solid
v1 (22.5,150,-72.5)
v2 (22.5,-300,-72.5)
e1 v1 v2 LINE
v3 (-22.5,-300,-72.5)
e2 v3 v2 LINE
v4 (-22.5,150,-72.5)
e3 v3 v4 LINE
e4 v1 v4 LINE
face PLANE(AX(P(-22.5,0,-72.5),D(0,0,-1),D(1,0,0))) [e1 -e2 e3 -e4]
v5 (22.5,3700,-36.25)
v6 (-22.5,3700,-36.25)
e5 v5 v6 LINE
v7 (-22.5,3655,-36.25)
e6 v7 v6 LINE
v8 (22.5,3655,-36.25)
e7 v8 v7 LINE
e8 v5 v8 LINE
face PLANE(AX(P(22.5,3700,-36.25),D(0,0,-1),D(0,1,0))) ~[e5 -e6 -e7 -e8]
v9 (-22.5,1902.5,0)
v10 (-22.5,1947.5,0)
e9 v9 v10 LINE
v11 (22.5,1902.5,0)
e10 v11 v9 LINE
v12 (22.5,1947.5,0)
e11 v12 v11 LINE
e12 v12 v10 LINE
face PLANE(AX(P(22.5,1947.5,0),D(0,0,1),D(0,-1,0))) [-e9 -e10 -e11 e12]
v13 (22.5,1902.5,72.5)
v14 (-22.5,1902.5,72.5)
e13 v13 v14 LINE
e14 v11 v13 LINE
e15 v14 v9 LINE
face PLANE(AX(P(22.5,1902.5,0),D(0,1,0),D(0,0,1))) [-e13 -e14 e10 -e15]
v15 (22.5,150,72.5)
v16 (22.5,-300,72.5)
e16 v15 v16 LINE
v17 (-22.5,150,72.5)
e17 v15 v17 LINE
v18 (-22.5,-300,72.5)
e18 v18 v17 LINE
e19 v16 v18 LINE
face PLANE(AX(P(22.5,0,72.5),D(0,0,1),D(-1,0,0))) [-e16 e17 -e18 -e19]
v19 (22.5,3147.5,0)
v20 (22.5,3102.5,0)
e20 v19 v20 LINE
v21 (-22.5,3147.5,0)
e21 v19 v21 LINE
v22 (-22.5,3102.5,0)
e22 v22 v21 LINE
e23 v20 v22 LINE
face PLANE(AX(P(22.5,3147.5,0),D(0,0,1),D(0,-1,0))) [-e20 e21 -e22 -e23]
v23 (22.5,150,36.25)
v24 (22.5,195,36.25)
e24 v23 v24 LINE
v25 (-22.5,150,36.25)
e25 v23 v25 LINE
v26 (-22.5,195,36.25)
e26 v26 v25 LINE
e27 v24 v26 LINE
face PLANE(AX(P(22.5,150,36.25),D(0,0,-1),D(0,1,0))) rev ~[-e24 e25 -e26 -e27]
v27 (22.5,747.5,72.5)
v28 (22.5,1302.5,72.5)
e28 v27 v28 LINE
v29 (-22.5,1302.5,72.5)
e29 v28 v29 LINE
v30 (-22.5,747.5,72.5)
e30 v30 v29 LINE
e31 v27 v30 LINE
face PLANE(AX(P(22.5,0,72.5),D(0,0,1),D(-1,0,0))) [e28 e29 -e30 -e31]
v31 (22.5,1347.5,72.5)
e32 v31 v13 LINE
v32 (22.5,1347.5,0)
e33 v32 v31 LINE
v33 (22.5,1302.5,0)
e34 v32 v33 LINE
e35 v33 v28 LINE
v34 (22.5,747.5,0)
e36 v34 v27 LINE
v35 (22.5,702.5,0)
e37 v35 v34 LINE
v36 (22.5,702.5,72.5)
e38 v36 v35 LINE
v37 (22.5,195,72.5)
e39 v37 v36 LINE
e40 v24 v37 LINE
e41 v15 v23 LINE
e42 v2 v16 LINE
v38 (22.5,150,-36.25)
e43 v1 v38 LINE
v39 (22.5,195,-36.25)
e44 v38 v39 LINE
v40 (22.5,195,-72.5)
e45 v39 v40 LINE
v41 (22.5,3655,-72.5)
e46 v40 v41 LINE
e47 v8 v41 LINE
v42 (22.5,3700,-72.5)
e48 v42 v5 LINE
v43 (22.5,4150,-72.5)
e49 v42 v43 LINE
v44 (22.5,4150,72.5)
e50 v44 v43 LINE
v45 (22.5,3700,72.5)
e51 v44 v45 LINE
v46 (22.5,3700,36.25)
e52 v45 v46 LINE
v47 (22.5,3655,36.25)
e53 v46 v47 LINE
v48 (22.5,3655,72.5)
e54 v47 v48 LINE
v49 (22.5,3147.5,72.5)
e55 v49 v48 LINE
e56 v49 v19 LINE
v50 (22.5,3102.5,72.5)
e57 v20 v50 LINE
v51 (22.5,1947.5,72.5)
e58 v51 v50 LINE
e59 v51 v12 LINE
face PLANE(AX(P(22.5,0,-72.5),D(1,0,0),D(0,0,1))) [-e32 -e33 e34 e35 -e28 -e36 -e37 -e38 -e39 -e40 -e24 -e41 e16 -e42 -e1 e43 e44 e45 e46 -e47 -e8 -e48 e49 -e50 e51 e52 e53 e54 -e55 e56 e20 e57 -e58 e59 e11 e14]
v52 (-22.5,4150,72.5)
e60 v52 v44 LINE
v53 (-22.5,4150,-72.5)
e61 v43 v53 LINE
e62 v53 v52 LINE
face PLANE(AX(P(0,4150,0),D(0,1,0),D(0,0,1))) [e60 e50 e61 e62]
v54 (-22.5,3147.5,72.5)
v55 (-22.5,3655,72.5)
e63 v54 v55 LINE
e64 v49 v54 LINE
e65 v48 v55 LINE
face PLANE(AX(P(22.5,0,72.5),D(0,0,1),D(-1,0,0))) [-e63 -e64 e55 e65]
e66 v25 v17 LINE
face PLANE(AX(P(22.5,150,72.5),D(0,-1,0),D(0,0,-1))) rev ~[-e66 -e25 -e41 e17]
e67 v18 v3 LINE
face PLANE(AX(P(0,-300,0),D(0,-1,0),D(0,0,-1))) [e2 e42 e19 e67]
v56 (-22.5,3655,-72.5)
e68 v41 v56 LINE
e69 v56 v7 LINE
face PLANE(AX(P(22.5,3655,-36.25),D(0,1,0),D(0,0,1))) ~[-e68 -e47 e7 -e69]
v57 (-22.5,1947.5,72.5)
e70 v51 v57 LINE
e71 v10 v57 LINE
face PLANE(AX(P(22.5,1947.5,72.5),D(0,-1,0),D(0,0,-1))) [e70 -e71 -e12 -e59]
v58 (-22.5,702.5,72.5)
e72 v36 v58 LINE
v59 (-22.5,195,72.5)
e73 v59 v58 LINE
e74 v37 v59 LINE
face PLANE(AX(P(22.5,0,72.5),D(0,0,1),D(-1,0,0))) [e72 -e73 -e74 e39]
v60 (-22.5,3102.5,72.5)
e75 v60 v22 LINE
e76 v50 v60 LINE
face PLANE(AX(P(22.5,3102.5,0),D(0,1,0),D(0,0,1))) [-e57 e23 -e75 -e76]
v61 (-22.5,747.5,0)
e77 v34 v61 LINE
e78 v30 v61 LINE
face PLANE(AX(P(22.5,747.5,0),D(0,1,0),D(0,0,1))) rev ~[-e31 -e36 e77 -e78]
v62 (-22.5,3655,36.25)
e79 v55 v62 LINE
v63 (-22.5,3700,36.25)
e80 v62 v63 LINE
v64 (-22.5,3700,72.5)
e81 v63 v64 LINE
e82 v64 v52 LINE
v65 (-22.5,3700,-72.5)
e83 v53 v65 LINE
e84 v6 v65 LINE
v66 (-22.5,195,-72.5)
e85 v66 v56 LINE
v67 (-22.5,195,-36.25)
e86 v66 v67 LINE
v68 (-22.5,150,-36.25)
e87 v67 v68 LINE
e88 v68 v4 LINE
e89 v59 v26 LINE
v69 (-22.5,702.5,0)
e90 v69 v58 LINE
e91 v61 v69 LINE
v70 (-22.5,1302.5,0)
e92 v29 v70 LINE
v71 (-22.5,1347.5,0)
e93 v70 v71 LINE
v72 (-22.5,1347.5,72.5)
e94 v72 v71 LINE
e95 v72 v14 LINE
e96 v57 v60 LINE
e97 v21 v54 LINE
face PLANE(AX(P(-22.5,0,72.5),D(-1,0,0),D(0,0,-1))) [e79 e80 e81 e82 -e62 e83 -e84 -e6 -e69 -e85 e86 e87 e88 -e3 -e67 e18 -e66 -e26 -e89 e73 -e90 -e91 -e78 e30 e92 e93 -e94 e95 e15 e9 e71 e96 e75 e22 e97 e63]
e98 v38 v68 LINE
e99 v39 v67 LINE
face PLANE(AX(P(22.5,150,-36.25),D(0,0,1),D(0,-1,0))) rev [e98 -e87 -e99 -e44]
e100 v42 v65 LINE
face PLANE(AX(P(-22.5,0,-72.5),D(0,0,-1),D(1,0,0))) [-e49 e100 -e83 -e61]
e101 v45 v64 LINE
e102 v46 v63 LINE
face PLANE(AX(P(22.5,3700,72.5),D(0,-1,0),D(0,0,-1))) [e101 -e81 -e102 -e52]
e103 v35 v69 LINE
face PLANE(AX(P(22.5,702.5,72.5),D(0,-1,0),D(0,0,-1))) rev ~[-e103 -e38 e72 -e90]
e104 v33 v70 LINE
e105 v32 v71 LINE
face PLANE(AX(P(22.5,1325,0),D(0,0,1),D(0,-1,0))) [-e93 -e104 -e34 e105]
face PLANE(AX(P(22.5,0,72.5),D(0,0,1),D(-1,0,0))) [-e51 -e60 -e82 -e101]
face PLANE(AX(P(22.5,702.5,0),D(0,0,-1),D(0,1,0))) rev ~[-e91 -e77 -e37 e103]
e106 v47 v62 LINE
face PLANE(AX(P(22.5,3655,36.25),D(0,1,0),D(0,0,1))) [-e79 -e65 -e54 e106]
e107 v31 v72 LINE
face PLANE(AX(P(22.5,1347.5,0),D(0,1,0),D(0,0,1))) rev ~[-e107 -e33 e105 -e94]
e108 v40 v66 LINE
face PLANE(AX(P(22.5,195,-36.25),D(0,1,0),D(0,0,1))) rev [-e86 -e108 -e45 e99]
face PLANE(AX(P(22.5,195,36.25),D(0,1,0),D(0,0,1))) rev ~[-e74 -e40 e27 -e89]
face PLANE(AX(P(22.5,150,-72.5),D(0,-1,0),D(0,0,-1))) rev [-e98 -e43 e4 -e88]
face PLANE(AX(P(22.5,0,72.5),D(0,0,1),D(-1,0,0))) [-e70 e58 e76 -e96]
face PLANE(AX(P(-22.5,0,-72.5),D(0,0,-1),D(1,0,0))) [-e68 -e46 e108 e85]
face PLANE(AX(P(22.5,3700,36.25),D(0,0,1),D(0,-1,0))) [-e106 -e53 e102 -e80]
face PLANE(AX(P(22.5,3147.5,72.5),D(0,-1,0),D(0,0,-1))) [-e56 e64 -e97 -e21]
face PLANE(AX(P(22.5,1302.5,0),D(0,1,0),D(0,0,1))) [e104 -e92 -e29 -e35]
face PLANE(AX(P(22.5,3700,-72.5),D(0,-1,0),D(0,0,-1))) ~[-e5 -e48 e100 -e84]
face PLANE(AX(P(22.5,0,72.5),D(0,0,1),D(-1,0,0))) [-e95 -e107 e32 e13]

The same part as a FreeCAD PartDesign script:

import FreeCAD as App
import Part
import Sketcher
from FreeCAD import Vector
Q = App.Units.Quantity

doc = App.newDocument("Part")
body = doc.addObject("PartDesign::Body", "Body")

sketch1 = body.newObject("Sketcher::SketchObject", "Sketch")
sketch1.AttachmentSupport = (doc.getObject("XZ_Plane"), [""])
sketch1.MapMode = "FlatFace"
sketch1.addGeometry(Part.LineSegment(Vector(-22.5, 72.5, 0), Vector(-22.5, -72.5, 0)), False)
sketch1.addGeometry(Part.LineSegment(Vector(-22.5, -72.5, 0), Vector(22.5, -72.5, 0)), False)
sketch1.addGeometry(Part.LineSegment(Vector(22.5, -72.5, 0), Vector(22.5, 72.5, 0)), False)
sketch1.addGeometry(Part.LineSegment(Vector(22.5, 72.5, 0), Vector(-22.5, 72.5, 0)), False)
sketch1.addConstraint(Sketcher.Constraint("Coincident", 0, 2, 1, 1))
sketch1.addConstraint(Sketcher.Constraint("Coincident", 1, 2, 2, 1))
sketch1.addConstraint(Sketcher.Constraint("Coincident", 2, 2, 3, 1))
sketch1.addConstraint(Sketcher.Constraint("Coincident", 3, 2, 0, 1))
sketch1.addConstraint(Sketcher.Constraint("Vertical", 0))
sketch1.addConstraint(Sketcher.Constraint("Horizontal", 1))
sketch1.addConstraint(Sketcher.Constraint("Vertical", 2))
sketch1.addConstraint(Sketcher.Constraint("Horizontal", 3))
sketch1.addConstraint(Sketcher.Constraint("Symmetric", 0, 2, 2, 2, -1, 1))
sketch1.addConstraint(Sketcher.Constraint("DistanceX", 1, 1, 1, 2, Q("45 mm")))
sketch1.addConstraint(Sketcher.Constraint("DistanceY", 0, 2, 0, 1, Q("145 mm")))
pad1 = body.newObject("PartDesign::Pad", "Pad")
pad1.Profile = sketch1
pad1.Length = 3850
pad1.Reversed = True

sketch2 = body.newObject("Sketcher::SketchObject", "Sketch001")
sketch2.AttachmentSupport = (doc.getObject("YZ_Plane"), [""])
sketch2.MapMode = "FlatFace"
sketch2.AttachmentOffset = App.Placement(Vector(0, 0, 22.5), App.Rotation())
sketch2.addGeometry(Part.LineSegment(Vector(3700, 36.25, 0), Vector(3700, 72.5, 0)), False)
sketch2.addGeometry(Part.LineSegment(Vector(3700, 72.5, 0), Vector(3655, 72.5, 0)), False)
sketch2.addGeometry(Part.LineSegment(Vector(3655, 72.5, 0), Vector(3655, 36.25, 0)), False)
sketch2.addGeometry(Part.LineSegment(Vector(3655, 36.25, 0), Vector(3700, 36.25, 0)), False)
sketch2.addGeometry(Part.LineSegment(Vector(195, 72.5, 0), Vector(150, 72.5, 0)), False)
sketch2.addGeometry(Part.LineSegment(Vector(150, 72.5, 0), Vector(150, 36.25, 0)), False)
sketch2.addGeometry(Part.LineSegment(Vector(150, 36.25, 0), Vector(195, 36.25, 0)), False)
sketch2.addGeometry(Part.LineSegment(Vector(195, 36.25, 0), Vector(195, 72.5, 0)), False)
sketch2.addConstraint(Sketcher.Constraint("Coincident", 0, 2, 1, 1))
sketch2.addConstraint(Sketcher.Constraint("Coincident", 1, 2, 2, 1))
sketch2.addConstraint(Sketcher.Constraint("Coincident", 2, 2, 3, 1))
sketch2.addConstraint(Sketcher.Constraint("Coincident", 3, 2, 0, 1))
sketch2.addConstraint(Sketcher.Constraint("Coincident", 4, 2, 5, 1))
sketch2.addConstraint(Sketcher.Constraint("Coincident", 5, 2, 6, 1))
sketch2.addConstraint(Sketcher.Constraint("Coincident", 6, 2, 7, 1))
sketch2.addConstraint(Sketcher.Constraint("Coincident", 7, 2, 4, 1))
sketch2.addConstraint(Sketcher.Constraint("Vertical", 0))
sketch2.addConstraint(Sketcher.Constraint("Horizontal", 1))
sketch2.addConstraint(Sketcher.Constraint("Vertical", 2))
sketch2.addConstraint(Sketcher.Constraint("Horizontal", 3))
sketch2.addConstraint(Sketcher.Constraint("Horizontal", 4))
sketch2.addConstraint(Sketcher.Constraint("Vertical", 5))
sketch2.addConstraint(Sketcher.Constraint("Horizontal", 6))
sketch2.addConstraint(Sketcher.Constraint("Vertical", 7))
sketch2.addConstraint(Sketcher.Constraint("Horizontal", 1, 2, 4, 2))
sketch2.addConstraint(Sketcher.Constraint("Horizontal", 3, 2, 5, 2))
sketch2.addConstraint(Sketcher.Constraint("Equal", 3, 4))
sketch2.addConstraint(Sketcher.Constraint("DistanceX", 1, 2, 1, 1, Q("45 mm")))
sketch2.addConstraint(Sketcher.Constraint("DistanceX", -1, 1, 0, 2, Q("3700 mm")))
sketch2.addConstraint(Sketcher.Constraint("DistanceX", -1, 1, 4, 2, Q("150 mm")))
sketch2.addConstraint(Sketcher.Constraint("DistanceY", 0, 1, 0, 2, Q("36.25 mm")))
sketch2.addConstraint(Sketcher.Constraint("DistanceY", -1, 1, 0, 2, Q("72.5 mm")))
pocket1 = body.newObject("PartDesign::Pocket", "Pocket")
pocket1.Profile = sketch2
pocket1.Length = 86.6929
doc.recompute()

mirrored = body.newObject("PartDesign::Mirrored", "Mirrored")
mirrored.Originals = [pocket1]
mirrored.MirrorPlane = (doc.getObject("XY_Plane"), [""])
body.Tip = mirrored

sketch3 = body.newObject("Sketcher::SketchObject", "Sketch002")
sketch3.AttachmentSupport = (doc.getObject("XZ_Plane"), [""])
sketch3.MapMode = "FlatFace"
sketch3.AttachmentOffset = App.Placement(Vector(0, 0, -3850), App.Rotation())
sketch3.addGeometry(Part.LineSegment(Vector(22.5, 72.5, 0), Vector(22.5, -72.5, 0)), False)
sketch3.addGeometry(Part.LineSegment(Vector(22.5, -72.5, 0), Vector(-22.5, -72.5, 0)), False)
sketch3.addGeometry(Part.LineSegment(Vector(-22.5, -72.5, 0), Vector(-22.5, 72.5, 0)), False)
sketch3.addGeometry(Part.LineSegment(Vector(-22.5, 72.5, 0), Vector(22.5, 72.5, 0)), False)
sketch3.addConstraint(Sketcher.Constraint("Coincident", 0, 2, 1, 1))
sketch3.addConstraint(Sketcher.Constraint("Coincident", 1, 2, 2, 1))
sketch3.addConstraint(Sketcher.Constraint("Coincident", 2, 2, 3, 1))
sketch3.addConstraint(Sketcher.Constraint("Coincident", 3, 2, 0, 1))
sketch3.addConstraint(Sketcher.Constraint("Vertical", 0))
sketch3.addConstraint(Sketcher.Constraint("Horizontal", 1))
sketch3.addConstraint(Sketcher.Constraint("Vertical", 2))
sketch3.addConstraint(Sketcher.Constraint("Horizontal", 3))
sketch3.addConstraint(Sketcher.Constraint("Symmetric", 0, 2, 2, 2, -1, 1))
sketch3.addConstraint(Sketcher.Constraint("DistanceX", 1, 2, 1, 1, Q("45 mm")))
sketch3.addConstraint(Sketcher.Constraint("DistanceY", 0, 2, 0, 1, Q("145 mm")))
pad2 = body.newObject("PartDesign::Pad", "Pad001")
pad2.Profile = sketch3
pad2.Length = 300
pad2.Reversed = True

sketch4 = body.newObject("Sketcher::SketchObject", "Sketch003")
sketch4.AttachmentSupport = (doc.getObject("XZ_Plane"), [""])
sketch4.MapMode = "FlatFace"
sketch4.addGeometry(Part.LineSegment(Vector(-22.5, 72.5, 0), Vector(-22.5, -72.5, 0)), False)
sketch4.addGeometry(Part.LineSegment(Vector(-22.5, -72.5, 0), Vector(22.5, -72.5, 0)), False)
sketch4.addGeometry(Part.LineSegment(Vector(22.5, -72.5, 0), Vector(22.5, 72.5, 0)), False)
sketch4.addGeometry(Part.LineSegment(Vector(22.5, 72.5, 0), Vector(-22.5, 72.5, 0)), False)
sketch4.addConstraint(Sketcher.Constraint("Coincident", 0, 2, 1, 1))
sketch4.addConstraint(Sketcher.Constraint("Coincident", 1, 2, 2, 1))
sketch4.addConstraint(Sketcher.Constraint("Coincident", 2, 2, 3, 1))
sketch4.addConstraint(Sketcher.Constraint("Coincident", 3, 2, 0, 1))
sketch4.addConstraint(Sketcher.Constraint("Vertical", 0))
sketch4.addConstraint(Sketcher.Constraint("Horizontal", 1))
sketch4.addConstraint(Sketcher.Constraint("Vertical", 2))
sketch4.addConstraint(Sketcher.Constraint("Horizontal", 3))
sketch4.addConstraint(Sketcher.Constraint("Symmetric", 0, 2, 2, 2, -1, 1))
sketch4.addConstraint(Sketcher.Constraint("DistanceX", 1, 1, 1, 2, Q("45 mm")))
sketch4.addConstraint(Sketcher.Constraint("DistanceY", 0, 2, 0, 1, Q("145 mm")))
pad3 = body.newObject("PartDesign::Pad", "Pad002")
pad3.Profile = sketch4
pad3.Length = 300

sketch5 = body.newObject("Sketcher::SketchObject", "Sketch004")
sketch5.AttachmentSupport = (doc.getObject("YZ_Plane"), [""])
sketch5.MapMode = "FlatFace"
sketch5.AttachmentOffset = App.Placement(Vector(0, 0, 22.5), App.Rotation())
sketch5.addGeometry(Part.LineSegment(Vector(1947.5, 72.5, 0), Vector(1902.5, 72.5, 0)), False)
sketch5.addGeometry(Part.LineSegment(Vector(1902.5, 72.5, 0), Vector(1902.5, 0, 0)), False)
sketch5.addGeometry(Part.LineSegment(Vector(1902.5, 0, 0), Vector(1947.5, 0, 0)), False)
sketch5.addGeometry(Part.LineSegment(Vector(1947.5, 0, 0), Vector(1947.5, 72.5, 0)), False)
sketch5.addGeometry(Part.LineSegment(Vector(1302.5, 0, 0), Vector(1347.5, 0, 0)), False)
sketch5.addGeometry(Part.LineSegment(Vector(1347.5, 0, 0), Vector(1347.5, 72.5, 0)), False)
sketch5.addGeometry(Part.LineSegment(Vector(1347.5, 72.5, 0), Vector(1302.5, 72.5, 0)), False)
sketch5.addGeometry(Part.LineSegment(Vector(1302.5, 72.5, 0), Vector(1302.5, 0, 0)), False)
sketch5.addGeometry(Part.LineSegment(Vector(747.5, 72.5, 0), Vector(702.5, 72.5, 0)), False)
sketch5.addGeometry(Part.LineSegment(Vector(702.5, 72.5, 0), Vector(702.5, 0, 0)), False)
sketch5.addGeometry(Part.LineSegment(Vector(702.5, 0, 0), Vector(747.5, 0, 0)), False)
sketch5.addGeometry(Part.LineSegment(Vector(747.5, 0, 0), Vector(747.5, 72.5, 0)), False)
sketch5.addGeometry(Part.LineSegment(Vector(3147.5, 72.5, 0), Vector(3102.5, 72.5, 0)), False)
sketch5.addGeometry(Part.LineSegment(Vector(3102.5, 72.5, 0), Vector(3102.5, 0, 0)), False)
sketch5.addGeometry(Part.LineSegment(Vector(3102.5, 0, 0), Vector(3147.5, 0, 0)), False)
sketch5.addGeometry(Part.LineSegment(Vector(3147.5, 0, 0), Vector(3147.5, 72.5, 0)), False)
sketch5.addConstraint(Sketcher.Constraint("Coincident", 0, 2, 1, 1))
sketch5.addConstraint(Sketcher.Constraint("Coincident", 1, 2, 2, 1))
sketch5.addConstraint(Sketcher.Constraint("Coincident", 2, 2, 3, 1))
sketch5.addConstraint(Sketcher.Constraint("Coincident", 3, 2, 0, 1))
sketch5.addConstraint(Sketcher.Constraint("Coincident", 4, 2, 5, 1))
sketch5.addConstraint(Sketcher.Constraint("Coincident", 5, 2, 6, 1))
sketch5.addConstraint(Sketcher.Constraint("Coincident", 6, 2, 7, 1))
sketch5.addConstraint(Sketcher.Constraint("Coincident", 7, 2, 4, 1))
sketch5.addConstraint(Sketcher.Constraint("Coincident", 8, 2, 9, 1))
sketch5.addConstraint(Sketcher.Constraint("Coincident", 9, 2, 10, 1))
sketch5.addConstraint(Sketcher.Constraint("Coincident", 10, 2, 11, 1))
sketch5.addConstraint(Sketcher.Constraint("Coincident", 11, 2, 8, 1))
sketch5.addConstraint(Sketcher.Constraint("Coincident", 12, 2, 13, 1))
sketch5.addConstraint(Sketcher.Constraint("Coincident", 13, 2, 14, 1))
sketch5.addConstraint(Sketcher.Constraint("Coincident", 14, 2, 15, 1))
sketch5.addConstraint(Sketcher.Constraint("Coincident", 15, 2, 12, 1))
sketch5.addConstraint(Sketcher.Constraint("Horizontal", 0))
sketch5.addConstraint(Sketcher.Constraint("Vertical", 1))
sketch5.addConstraint(Sketcher.Constraint("Horizontal", 2))
sketch5.addConstraint(Sketcher.Constraint("Vertical", 3))
sketch5.addConstraint(Sketcher.Constraint("Horizontal", 4))
sketch5.addConstraint(Sketcher.Constraint("Vertical", 5))
sketch5.addConstraint(Sketcher.Constraint("Horizontal", 6))
sketch5.addConstraint(Sketcher.Constraint("Vertical", 7))
sketch5.addConstraint(Sketcher.Constraint("Horizontal", 8))
sketch5.addConstraint(Sketcher.Constraint("Vertical", 9))
sketch5.addConstraint(Sketcher.Constraint("Horizontal", 10))
sketch5.addConstraint(Sketcher.Constraint("Vertical", 11))
sketch5.addConstraint(Sketcher.Constraint("Horizontal", 12))
sketch5.addConstraint(Sketcher.Constraint("Vertical", 13))
sketch5.addConstraint(Sketcher.Constraint("Horizontal", 14))
sketch5.addConstraint(Sketcher.Constraint("Vertical", 15))
sketch5.addConstraint(Sketcher.Constraint("PointOnObject", 1, 2, -1))
sketch5.addConstraint(Sketcher.Constraint("PointOnObject", 4, 2, -1))
sketch5.addConstraint(Sketcher.Constraint("PointOnObject", 9, 2, -1))
sketch5.addConstraint(Sketcher.Constraint("PointOnObject", 13, 2, -1))
sketch5.addConstraint(Sketcher.Constraint("Horizontal", 3, 2, 5, 2))
sketch5.addConstraint(Sketcher.Constraint("Horizontal", 6, 2, 8, 2))
sketch5.addConstraint(Sketcher.Constraint("Horizontal", 11, 2, 12, 2))
sketch5.addConstraint(Sketcher.Constraint("Equal", 2, 4))
sketch5.addConstraint(Sketcher.Constraint("Equal", 6, 8))
sketch5.addConstraint(Sketcher.Constraint("Equal", 10, 12))
sketch5.addConstraint(Sketcher.Constraint("DistanceX", 0, 2, 0, 1, Q("45 mm")))
sketch5.addConstraint(Sketcher.Constraint("DistanceY", 1, 2, 1, 1, Q("72.5 mm")))
sketch5.addConstraint(Sketcher.Constraint("DistanceX", 4, 2, 1, 2, Q("555 mm")))
sketch5.addConstraint(Sketcher.Constraint("DistanceX", 8, 2, 6, 2, Q("600 mm")))
sketch5.addConstraint(Sketcher.Constraint("DistanceX", 3, 2, 12, 2, Q("1155 mm")))
sketch5.addConstraint(Sketcher.Constraint("DistanceX", -1, 1, 0, 2, Q("1902.5 mm")))
pocket2 = body.newObject("PartDesign::Pocket", "Pocket001")
pocket2.Profile = sketch5
pocket2.Length = 122.0122

doc.recompute()
